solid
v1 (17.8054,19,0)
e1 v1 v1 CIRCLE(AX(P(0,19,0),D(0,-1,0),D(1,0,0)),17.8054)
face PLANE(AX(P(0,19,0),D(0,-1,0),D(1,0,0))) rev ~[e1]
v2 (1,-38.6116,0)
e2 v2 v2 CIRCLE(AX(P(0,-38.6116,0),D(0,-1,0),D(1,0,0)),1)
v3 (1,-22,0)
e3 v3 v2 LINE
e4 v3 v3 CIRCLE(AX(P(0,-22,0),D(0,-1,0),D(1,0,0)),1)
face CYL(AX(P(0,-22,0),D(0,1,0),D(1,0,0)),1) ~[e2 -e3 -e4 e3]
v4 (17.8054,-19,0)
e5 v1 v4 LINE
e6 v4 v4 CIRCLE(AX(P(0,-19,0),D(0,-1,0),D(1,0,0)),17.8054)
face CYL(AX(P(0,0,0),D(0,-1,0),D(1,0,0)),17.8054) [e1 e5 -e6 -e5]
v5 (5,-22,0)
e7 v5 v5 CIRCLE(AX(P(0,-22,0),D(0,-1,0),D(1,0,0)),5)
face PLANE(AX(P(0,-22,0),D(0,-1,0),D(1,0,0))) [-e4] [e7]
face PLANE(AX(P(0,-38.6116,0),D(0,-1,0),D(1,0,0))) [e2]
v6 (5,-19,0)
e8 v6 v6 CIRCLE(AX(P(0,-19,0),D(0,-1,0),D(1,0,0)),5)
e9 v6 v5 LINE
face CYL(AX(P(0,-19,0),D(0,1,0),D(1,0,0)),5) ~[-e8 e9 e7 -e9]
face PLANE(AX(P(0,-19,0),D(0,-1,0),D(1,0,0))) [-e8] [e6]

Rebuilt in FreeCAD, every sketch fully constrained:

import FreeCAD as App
import Part
import Sketcher
from FreeCAD import Vector
Q = App.Units.Quantity

doc = App.newDocument("Part")
params = doc.addObject("Spreadsheet::Sheet", "Params")
for row, (alias, value) in enumerate([
    ("pad1_length", "38 mm"),
    ("sketch2_diameter", "10 mm"),
    ("pad2_length", "3 mm"),
    ("sketch3_diameter", "2 mm"),
    ("pad3_length", "16.6116 mm"),
], start=1):
    params.set(f"A{row}", alias)
    params.set(f"B{row}", "=" + value)
    params.setAlias(f"B{row}", alias)

body = doc.addObject("PartDesign::Body", "Body")

# Sketch on XZ plane
sketch1 = body.newObject("Sketcher::SketchObject", "Sketch")
sketch1.AttachmentSupport = (doc.getObject("XZ_Plane"), [""])
sketch1.MapMode = "FlatFace"
sketch1.addGeometry(Part.Circle(Vector(0, 0, 0), Vector(0, 0, 1), 18), False)
sketch1.addConstraint(Sketcher.Constraint("Coincident", 0, 3, -1, 1))
sketch1.addConstraint(Sketcher.Constraint("Diameter", 0, Q("35.6108 mm")))
pad1 = body.newObject("PartDesign::Pad", "Pad")
pad1.Profile = sketch1
pad1.setExpression("Length", "Params.pad1_length")
pad1.Midplane = True

# Sketch on XZ plane
sketch2 = body.newObject("Sketcher::SketchObject", "Sketch001")
sketch2.AttachmentSupport = (doc.getObject("XZ_Plane"), [""])
sketch2.MapMode = "FlatFace"
sketch2.AttachmentOffset = App.Placement(Vector(0, 0, 19), App.Rotation())
sketch2.addGeometry(Part.Circle(Vector(0, 0, 0), Vector(0, 0, 1), 5), False)
sketch2.addConstraint(Sketcher.Constraint("Coincident", 0, 3, -1, 1))
sketch2.addConstraint(Sketcher.Constraint("Diameter", 0, Q("10 mm")))
sketch2.setExpression("Constraints[1]", "Params.sketch2_diameter")
pad2 = body.newObject("PartDesign::Pad", "Pad001")
pad2.Profile = sketch2
pad2.setExpression("Length", "Params.pad2_length")

# Sketch on XZ plane
sketch3 = body.newObject("Sketcher::SketchObject", "Sketch002")
sketch3.AttachmentSupport = (doc.getObject("XZ_Plane"), [""])
sketch3.MapMode = "FlatFace"
sketch3.AttachmentOffset = App.Placement(Vector(0, 0, 22), App.Rotation())
sketch3.addGeometry(Part.Circle(Vector(0, 0, 0), Vector(0, 0, 1), 1), False)
sketch3.addConstraint(Sketcher.Constraint("Coincident", 0, 3, -1, 1))
sketch3.addConstraint(Sketcher.Constraint("Diameter", 0, Q("2 mm")))
sketch3.setExpression("Constraints[1]", "Params.sketch3_diameter")
pad3 = body.newObject("PartDesign::Pad", "Pad002")
pad3.Profile = sketch3
pad3.setExpression("Length", "Params.pad3_length")

doc.recompute()
